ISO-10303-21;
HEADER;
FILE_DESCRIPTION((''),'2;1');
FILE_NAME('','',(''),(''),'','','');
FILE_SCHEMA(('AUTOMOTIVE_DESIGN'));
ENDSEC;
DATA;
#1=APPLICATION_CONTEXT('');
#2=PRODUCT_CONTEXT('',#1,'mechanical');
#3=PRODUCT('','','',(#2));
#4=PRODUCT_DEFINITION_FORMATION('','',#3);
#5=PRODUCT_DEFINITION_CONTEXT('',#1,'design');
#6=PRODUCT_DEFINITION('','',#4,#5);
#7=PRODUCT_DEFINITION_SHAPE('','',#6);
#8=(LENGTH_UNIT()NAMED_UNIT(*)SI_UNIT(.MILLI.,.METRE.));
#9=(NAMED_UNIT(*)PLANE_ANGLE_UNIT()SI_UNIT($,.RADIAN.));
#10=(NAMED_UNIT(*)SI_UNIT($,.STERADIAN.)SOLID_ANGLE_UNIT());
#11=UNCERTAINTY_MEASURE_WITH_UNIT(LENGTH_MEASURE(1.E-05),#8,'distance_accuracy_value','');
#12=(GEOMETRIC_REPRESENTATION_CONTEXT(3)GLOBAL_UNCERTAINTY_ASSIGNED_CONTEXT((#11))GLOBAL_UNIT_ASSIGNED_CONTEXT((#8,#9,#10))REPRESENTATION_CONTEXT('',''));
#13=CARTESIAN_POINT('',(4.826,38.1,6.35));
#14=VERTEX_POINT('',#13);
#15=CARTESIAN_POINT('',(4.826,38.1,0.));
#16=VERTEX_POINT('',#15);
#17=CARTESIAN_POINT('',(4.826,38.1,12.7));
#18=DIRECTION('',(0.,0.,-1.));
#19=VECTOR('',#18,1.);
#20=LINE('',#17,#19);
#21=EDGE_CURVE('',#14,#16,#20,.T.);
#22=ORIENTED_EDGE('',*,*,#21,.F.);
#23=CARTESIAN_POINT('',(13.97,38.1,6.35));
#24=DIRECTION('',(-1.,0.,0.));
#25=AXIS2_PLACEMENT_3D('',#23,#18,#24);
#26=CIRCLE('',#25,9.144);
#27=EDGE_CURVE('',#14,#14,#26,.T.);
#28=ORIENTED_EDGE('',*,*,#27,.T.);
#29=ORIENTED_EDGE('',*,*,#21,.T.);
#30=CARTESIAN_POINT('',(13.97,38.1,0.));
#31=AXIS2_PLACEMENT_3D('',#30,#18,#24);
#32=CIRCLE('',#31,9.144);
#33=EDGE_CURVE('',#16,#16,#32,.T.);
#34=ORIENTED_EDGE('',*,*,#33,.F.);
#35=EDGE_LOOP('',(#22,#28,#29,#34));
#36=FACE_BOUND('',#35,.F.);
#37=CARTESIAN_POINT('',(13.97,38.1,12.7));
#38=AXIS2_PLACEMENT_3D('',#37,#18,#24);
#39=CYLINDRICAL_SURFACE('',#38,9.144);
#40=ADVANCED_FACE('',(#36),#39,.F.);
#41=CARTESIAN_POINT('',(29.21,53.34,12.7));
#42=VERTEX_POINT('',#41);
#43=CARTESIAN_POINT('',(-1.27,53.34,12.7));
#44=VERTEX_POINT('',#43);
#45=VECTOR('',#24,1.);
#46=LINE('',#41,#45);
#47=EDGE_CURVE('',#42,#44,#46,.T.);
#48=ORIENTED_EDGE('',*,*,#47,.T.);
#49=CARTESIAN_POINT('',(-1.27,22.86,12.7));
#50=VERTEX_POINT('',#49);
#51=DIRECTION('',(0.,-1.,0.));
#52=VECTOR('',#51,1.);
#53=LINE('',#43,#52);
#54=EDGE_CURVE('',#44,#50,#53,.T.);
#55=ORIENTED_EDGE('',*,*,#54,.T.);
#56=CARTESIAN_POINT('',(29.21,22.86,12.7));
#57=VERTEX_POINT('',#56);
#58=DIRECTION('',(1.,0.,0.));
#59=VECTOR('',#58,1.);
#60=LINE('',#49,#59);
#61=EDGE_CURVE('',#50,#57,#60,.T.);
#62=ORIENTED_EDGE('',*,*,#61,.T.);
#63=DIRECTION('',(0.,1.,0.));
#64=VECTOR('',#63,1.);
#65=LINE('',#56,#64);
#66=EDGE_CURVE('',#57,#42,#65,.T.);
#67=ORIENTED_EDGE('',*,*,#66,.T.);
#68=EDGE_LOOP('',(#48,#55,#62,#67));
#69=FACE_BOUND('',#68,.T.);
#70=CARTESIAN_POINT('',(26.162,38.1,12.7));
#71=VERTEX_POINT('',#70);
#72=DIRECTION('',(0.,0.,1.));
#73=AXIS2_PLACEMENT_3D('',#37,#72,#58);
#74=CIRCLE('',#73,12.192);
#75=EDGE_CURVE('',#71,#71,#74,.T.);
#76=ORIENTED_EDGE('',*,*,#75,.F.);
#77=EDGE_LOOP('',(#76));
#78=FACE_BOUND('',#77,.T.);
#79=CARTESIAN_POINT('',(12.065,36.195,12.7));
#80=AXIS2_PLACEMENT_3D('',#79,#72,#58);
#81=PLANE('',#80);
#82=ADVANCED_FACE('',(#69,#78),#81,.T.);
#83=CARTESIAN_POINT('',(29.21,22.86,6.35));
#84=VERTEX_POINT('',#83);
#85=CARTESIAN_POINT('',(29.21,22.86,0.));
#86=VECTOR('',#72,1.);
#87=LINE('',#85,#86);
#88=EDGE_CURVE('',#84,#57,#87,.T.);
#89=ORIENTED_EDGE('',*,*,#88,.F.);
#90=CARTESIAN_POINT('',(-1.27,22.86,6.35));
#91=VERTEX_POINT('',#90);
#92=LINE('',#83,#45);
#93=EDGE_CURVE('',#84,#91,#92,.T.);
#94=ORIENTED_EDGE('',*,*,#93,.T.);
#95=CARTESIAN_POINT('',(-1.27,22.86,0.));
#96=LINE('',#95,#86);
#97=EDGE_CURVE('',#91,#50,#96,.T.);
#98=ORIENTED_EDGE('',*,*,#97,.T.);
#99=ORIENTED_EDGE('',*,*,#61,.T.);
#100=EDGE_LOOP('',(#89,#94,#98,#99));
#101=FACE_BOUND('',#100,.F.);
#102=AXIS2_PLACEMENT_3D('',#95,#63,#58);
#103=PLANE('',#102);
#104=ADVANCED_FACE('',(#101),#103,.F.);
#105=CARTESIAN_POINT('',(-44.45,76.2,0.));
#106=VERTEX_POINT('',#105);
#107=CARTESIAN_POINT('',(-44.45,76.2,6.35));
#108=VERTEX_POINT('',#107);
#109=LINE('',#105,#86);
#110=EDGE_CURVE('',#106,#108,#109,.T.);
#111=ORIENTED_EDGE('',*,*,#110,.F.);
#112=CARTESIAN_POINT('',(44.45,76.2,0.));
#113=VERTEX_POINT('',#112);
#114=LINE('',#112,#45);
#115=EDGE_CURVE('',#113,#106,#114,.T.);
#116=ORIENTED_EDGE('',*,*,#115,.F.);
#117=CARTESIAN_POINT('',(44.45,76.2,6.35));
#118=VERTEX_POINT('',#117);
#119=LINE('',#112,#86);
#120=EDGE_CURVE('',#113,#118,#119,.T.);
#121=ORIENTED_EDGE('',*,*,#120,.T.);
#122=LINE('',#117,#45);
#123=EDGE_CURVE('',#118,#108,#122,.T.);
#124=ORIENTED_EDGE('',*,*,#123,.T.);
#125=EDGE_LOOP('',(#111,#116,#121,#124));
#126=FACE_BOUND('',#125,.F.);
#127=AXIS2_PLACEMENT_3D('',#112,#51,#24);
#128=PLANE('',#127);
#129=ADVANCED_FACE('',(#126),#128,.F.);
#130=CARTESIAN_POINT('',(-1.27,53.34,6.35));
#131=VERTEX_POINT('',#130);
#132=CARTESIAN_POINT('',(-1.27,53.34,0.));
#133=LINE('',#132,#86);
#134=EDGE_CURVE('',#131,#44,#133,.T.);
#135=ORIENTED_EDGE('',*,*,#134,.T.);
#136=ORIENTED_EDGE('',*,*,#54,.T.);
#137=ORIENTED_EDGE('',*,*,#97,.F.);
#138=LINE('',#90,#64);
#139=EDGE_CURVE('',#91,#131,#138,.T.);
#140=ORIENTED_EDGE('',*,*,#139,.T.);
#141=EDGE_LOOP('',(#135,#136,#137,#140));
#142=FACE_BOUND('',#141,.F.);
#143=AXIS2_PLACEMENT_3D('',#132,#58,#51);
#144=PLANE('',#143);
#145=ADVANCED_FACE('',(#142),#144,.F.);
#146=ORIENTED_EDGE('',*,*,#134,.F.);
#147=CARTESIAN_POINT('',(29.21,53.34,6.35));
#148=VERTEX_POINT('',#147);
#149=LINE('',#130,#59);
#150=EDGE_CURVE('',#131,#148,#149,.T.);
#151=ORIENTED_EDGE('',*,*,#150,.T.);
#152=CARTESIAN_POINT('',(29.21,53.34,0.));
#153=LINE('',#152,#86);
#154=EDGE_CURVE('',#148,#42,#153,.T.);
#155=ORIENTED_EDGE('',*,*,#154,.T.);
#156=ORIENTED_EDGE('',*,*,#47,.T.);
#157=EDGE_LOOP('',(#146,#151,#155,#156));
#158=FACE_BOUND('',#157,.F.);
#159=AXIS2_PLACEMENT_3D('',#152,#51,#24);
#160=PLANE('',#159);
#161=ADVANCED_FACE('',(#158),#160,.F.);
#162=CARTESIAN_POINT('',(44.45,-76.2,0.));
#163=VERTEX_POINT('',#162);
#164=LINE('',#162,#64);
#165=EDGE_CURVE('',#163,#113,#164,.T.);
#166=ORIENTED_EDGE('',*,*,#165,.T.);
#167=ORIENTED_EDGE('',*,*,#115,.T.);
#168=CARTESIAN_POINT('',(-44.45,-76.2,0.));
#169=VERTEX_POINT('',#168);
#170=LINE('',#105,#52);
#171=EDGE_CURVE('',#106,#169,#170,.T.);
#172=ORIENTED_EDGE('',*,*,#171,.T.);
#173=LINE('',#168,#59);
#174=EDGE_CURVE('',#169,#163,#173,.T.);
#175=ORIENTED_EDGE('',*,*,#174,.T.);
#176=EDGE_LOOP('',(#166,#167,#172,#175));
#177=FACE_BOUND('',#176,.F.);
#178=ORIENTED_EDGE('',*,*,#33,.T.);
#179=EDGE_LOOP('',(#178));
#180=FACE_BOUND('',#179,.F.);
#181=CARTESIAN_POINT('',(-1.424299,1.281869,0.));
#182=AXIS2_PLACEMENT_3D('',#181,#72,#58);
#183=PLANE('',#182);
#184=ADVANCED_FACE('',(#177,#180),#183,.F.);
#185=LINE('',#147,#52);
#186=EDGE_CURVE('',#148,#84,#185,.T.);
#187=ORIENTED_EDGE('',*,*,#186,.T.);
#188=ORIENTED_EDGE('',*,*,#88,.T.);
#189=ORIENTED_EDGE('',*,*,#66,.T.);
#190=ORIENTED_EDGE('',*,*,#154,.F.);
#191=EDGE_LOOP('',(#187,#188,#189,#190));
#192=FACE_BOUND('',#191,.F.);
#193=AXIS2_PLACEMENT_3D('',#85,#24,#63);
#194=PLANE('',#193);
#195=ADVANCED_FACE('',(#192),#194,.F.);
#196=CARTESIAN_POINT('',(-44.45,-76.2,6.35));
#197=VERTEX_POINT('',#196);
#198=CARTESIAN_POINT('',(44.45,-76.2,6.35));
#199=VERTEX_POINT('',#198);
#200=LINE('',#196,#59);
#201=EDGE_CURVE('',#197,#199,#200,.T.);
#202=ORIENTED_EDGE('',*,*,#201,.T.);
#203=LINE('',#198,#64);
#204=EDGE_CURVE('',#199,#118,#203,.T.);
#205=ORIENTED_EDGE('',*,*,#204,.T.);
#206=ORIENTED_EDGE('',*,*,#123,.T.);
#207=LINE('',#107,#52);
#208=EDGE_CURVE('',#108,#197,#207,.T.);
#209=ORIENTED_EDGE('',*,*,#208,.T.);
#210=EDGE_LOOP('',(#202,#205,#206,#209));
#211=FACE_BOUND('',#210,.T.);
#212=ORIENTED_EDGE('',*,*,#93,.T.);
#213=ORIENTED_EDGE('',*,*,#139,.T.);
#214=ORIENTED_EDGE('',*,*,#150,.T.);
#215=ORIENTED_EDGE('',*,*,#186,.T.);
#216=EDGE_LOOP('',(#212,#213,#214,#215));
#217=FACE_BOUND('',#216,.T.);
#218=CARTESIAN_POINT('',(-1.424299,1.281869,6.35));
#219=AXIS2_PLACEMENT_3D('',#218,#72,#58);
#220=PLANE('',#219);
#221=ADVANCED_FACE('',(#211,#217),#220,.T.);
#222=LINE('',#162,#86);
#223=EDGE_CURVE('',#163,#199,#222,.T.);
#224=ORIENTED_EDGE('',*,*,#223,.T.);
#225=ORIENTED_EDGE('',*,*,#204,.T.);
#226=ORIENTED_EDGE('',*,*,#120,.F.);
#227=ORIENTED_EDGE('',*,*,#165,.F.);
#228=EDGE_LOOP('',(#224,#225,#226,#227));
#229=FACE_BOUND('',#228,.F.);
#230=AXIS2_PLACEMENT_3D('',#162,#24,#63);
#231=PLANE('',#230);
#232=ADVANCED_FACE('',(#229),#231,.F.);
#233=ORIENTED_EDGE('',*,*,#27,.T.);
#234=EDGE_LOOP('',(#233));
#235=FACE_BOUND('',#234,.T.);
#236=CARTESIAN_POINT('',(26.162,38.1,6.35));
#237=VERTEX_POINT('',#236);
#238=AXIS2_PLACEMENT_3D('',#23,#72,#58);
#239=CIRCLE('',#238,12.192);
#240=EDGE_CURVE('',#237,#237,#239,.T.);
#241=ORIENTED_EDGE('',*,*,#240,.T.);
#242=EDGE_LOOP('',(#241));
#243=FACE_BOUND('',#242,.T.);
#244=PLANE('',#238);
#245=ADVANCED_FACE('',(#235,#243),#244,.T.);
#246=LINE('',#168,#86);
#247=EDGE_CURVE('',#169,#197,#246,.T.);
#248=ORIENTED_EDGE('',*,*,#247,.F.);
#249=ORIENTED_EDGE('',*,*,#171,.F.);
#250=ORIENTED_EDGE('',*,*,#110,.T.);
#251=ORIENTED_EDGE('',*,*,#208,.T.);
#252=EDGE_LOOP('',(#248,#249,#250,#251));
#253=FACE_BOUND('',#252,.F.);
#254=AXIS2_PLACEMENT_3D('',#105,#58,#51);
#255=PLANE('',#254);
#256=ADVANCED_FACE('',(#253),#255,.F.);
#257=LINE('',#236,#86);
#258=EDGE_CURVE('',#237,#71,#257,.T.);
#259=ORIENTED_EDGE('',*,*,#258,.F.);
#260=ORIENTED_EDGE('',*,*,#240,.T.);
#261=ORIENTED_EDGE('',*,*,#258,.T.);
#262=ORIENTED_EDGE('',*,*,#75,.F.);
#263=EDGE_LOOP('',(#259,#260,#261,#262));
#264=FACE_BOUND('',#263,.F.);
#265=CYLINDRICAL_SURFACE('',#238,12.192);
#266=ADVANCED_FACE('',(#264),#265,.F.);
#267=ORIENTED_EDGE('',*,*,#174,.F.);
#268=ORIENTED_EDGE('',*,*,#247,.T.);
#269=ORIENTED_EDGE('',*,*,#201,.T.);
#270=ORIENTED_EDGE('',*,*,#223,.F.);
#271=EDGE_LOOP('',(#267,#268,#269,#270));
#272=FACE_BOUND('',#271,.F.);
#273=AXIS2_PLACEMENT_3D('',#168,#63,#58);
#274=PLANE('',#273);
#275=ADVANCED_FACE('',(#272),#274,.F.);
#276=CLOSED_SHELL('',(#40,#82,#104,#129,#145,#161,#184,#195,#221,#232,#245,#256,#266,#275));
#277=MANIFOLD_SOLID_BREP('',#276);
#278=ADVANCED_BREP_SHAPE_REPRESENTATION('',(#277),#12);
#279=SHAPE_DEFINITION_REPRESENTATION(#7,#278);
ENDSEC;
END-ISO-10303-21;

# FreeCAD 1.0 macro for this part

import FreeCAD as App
import Part
import Sketcher
Q = App.Units.Quantity


def add_polygon(sketch, points):
    """Adds a closed chain of lines whose ends are joined by coincident constraints."""
    first, n = sketch.GeometryCount, len(points)
    for a, b in zip(points, points[1:] + points[:1]):
        sketch.addGeometry(Part.LineSegment(App.Vector(*a, 0), App.Vector(*b, 0)), False)
    for i in range(n):
        sketch.addConstraint(Sketcher.Constraint("Coincident", first + i, 2, first + (i + 1) % n, 1))

doc = App.newDocument("Part")
params = doc.addObject("Spreadsheet::Sheet", "Params")
for row, (alias, value) in enumerate([
    ("sketch1_height", "6 in"),
    ("sketch1_width", "3.5 in"),
    ("sketch1_width2", "1.2 in"),
    ("pad1_length", "0.25 in"),
    ("sketch2_width", "1.2 in"),
    ("pad2_length", "0.5 in"),
    ("sketch3_diameter", "0.72 in"),
    ("hole_diameter", "0.72 in"),
    ("hole_cbore_diameter", "0.96 in"),
    ("hole_cbore_depth", "0.25 in"),
], start=1):
    params.set(f"A{row}", alias)
    params.set(f"B{row}", "=" + value)
    params.setAlias(f"B{row}", alias)

body = doc.addObject("PartDesign::Body", "Body")

# Sketch on XY plane
sketch1 = body.newObject("Sketcher::SketchObject", "Sketch")
sketch1.AttachmentSupport = (doc.getObject("XY_Plane"), [""])
sketch1.MapMode = "FlatFace"
add_polygon(sketch1, [(-44, -76), (44, -76), (44, 76), (-44, 76)])  # lines 0-3
add_polygon(sketch1, [(29, 23), (-1, 23), (-1, 53), (29, 53)])  # lines 4-7
sketch1.addConstraint([
    Sketcher.Constraint("Horizontal", 0),
    Sketcher.Constraint("Vertical", 1),
    Sketcher.Constraint("Horizontal", 2),
    Sketcher.Constraint("Vertical", 3),
    Sketcher.Constraint("Horizontal", 4),
    Sketcher.Constraint("Vertical", 5),
    Sketcher.Constraint("Horizontal", 6),
    Sketcher.Constraint("Vertical", 7),
    Sketcher.Constraint("Symmetric", 0, 2, 2, 2, -1, 1),
    Sketcher.Constraint("Equal", 6, 5),
    Sketcher.Constraint("DistanceY", 1, 1, 1, 2, Q("6 in")),
    Sketcher.Constraint("DistanceX", 0, 1, 0, 2, Q("3.5 in")),
    Sketcher.Constraint("DistanceX", 4, 2, 4, 1, Q("1.2 in")),
    Sketcher.Constraint("DistanceY", -1, 1, 4, 2, Q("0.9 in")),
    Sketcher.Constraint("DistanceX", 2, 2, 4, 2, Q("1.7 in")),
])
sketch1.setExpression("Constraints[18]", "Params.sketch1_height")
sketch1.setExpression("Constraints[19]", "Params.sketch1_width")
sketch1.setExpression("Constraints[20]", "Params.sketch1_width2")
pad1 = body.newObject("PartDesign::Pad", "Pad")
pad1.Profile = sketch1
pad1.setExpression("Length", "Params.pad1_length")

# Sketch on XY plane
sketch2 = body.newObject("Sketcher::SketchObject", "Sketch001")
sketch2.AttachmentSupport = (doc.getObject("XY_Plane"), [""])
sketch2.MapMode = "FlatFace"
add_polygon(sketch2, [(29, 23), (29, 53), (-1, 53), (-1, 23)])  # lines 0-3
sketch2.addConstraint([
    Sketcher.Constraint("Vertical", 0),
    Sketcher.Constraint("Horizontal", 1),
    Sketcher.Constraint("Vertical", 2),
    Sketcher.Constraint("Horizontal", 3),
    Sketcher.Constraint("Equal", 3, 0),
    Sketcher.Constraint("DistanceX", 1, 2, 1, 1, Q("1.2 in")),
    Sketcher.Constraint("DistanceY", -1, 1, 0, 2, Q("2.1 in")),
    Sketcher.Constraint("DistanceX", -1, 1, 0, 2, Q("1.15 in")),
])
sketch2.setExpression("Constraints[9]", "Params.sketch2_width")
pad2 = body.newObject("PartDesign::Pad", "Pad001")
pad2.Profile = sketch2
pad2.setExpression("Length", "Params.pad2_length")

# Sketch on XY plane
sketch3 = body.newObject("Sketcher::SketchObject", "Sketch002")
sketch3.AttachmentSupport = (doc.getObject("XY_Plane"), [""])
sketch3.MapMode = "FlatFace"
sketch3.AttachmentOffset = App.Placement(App.Vector(0, 0, 0.5 * 25.4), App.Rotation())
sketch3.addGeometry(Part.Circle(App.Vector(14, 38, 0), App.Vector(0, 0, 1), 9), False)
sketch3.addConstraint([
    Sketcher.Constraint("Diameter", 0, Q("0.72 in")),
    Sketcher.Constraint("DistanceY", -1, 1, 0, 3, Q("1.5 in")),
    Sketcher.Constraint("DistanceX", -1, 1, 0, 3, Q("0.55 in")),
])
sketch3.setExpression("Constraints[0]", "Params.sketch3_diameter")
doc.recompute()
hole = body.newObject("PartDesign::Hole", "Hole")
hole.Profile = sketch3
hole.ThreadType = "None"
hole.setExpression("Diameter", "Params.hole_diameter")
hole.DepthType = "ThroughAll"
hole.HoleCutType = "Counterbore"
hole.setExpression("HoleCutDiameter", "Params.hole_cbore_diameter")
hole.setExpression("HoleCutDepth", "Params.hole_cbore_depth")

doc.recompute()
